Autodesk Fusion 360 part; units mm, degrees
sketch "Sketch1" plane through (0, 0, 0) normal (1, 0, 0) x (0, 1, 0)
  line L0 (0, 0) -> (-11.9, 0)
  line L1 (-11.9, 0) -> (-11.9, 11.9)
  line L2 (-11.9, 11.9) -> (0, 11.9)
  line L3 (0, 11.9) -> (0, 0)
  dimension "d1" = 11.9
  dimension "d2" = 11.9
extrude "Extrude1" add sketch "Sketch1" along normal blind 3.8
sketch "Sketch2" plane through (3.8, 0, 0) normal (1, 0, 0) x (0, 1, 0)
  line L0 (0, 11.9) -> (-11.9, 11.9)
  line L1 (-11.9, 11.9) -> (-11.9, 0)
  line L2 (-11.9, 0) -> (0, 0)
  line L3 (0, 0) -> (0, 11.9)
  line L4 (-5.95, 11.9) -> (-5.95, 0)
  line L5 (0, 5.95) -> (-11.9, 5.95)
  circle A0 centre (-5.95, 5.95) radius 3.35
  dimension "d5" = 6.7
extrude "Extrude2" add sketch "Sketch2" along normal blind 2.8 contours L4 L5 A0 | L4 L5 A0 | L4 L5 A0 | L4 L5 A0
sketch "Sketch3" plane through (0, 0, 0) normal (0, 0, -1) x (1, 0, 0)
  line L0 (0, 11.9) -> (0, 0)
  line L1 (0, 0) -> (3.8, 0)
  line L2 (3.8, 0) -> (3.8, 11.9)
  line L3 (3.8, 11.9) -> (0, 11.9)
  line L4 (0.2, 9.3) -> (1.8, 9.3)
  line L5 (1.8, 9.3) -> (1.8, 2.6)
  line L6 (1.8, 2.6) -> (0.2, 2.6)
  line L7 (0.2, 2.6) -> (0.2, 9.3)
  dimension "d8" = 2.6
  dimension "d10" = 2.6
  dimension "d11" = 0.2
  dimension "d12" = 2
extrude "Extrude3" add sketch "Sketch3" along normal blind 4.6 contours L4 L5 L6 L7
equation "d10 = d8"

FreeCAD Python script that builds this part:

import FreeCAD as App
import Part
import Sketcher
Q = App.Units.Quantity


def add_polygon(sketch, points):
    """Adds a closed chain of lines whose ends are joined by coincident constraints."""
    first, n = sketch.GeometryCount, len(points)
    for a, b in zip(points, points[1:] + points[:1]):
        sketch.addGeometry(Part.LineSegment(App.Vector(*a, 0), App.Vector(*b, 0)), False)
    for i in range(n):
        sketch.addConstraint(Sketcher.Constraint("Coincident", first + i, 2, first + (i + 1) % n, 1))

doc = App.newDocument("Part")
params = doc.addObject("Spreadsheet::Sheet", "Params")
for row, (alias, value) in enumerate([
    ("sketch1_width", "11.9 mm"),
    ("pad1_length", "3.8 mm"),
    ("sketch2_diameter", "6.7 mm"),
    ("pad2_length", "2.8 mm"),
    ("sketch3_width", "1.6 mm"),
    ("sketch3_height", "6.7 mm"),
    ("pad3_length", "4.6 mm"),
], start=1):
    params.set(f"A{row}", alias)
    params.set(f"B{row}", "=" + value)
    params.setAlias(f"B{row}", alias)

body = doc.addObject("PartDesign::Body", "Body")

# Sketch on YZ plane
sketch1 = doc.addObject("Sketcher::SketchObject", "Sketch")
body.addObject(sketch1)
sketch1.AttachmentSupport = (doc.YZ_Plane, [""])
sketch1.MapMode = "FlatFace"
add_polygon(sketch1, [(-11.9, 0), (0, 0), (0, 11.9), (-11.9, 11.9)])  # lines 0-3
sketch1.addConstraint([
    Sketcher.Constraint("Horizontal", 0),
    Sketcher.Constraint("Vertical", 1),
    Sketcher.Constraint("Horizontal", 2),
    Sketcher.Constraint("Vertical", 3),
    Sketcher.Constraint("Coincident", 0, 2, -1, 1),
    Sketcher.Constraint("Equal", 2, 1),
    Sketcher.Constraint("DistanceX", 0, 1, 0, 2, Q("11.9 mm")),
])
sketch1.setExpression("Constraints[10]", "Params.sketch1_width")
pad1 = doc.addObject("PartDesign::Pad", "Pad")
body.addObject(pad1)
pad1.Profile = sketch1
pad1.setExpression("Length", "Params.pad1_length")

# Sketch on YZ plane
sketch2 = doc.addObject("Sketcher::SketchObject", "Sketch001")
body.addObject(sketch2)
sketch2.AttachmentSupport = (doc.YZ_Plane, [""])
sketch2.MapMode = "FlatFace"
sketch2.AttachmentOffset = App.Placement(App.Vector(0, 0, 3.8), App.Rotation())
sketch2.addGeometry(Part.Circle(App.Vector(-5.95, 5.95, 0), App.Vector(0, 0, 1), 3.35), False)
sketch2.addConstraint([
    Sketcher.Constraint("Diameter", 0, Q("6.7 mm")),
    Sketcher.Constraint("DistanceX", 0, 3, -1, 1, Q("5.95 mm")),
    Sketcher.Constraint("DistanceY", -1, 1, 0, 3, Q("5.95 mm")),
])
sketch2.setExpression("Constraints[0]", "Params.sketch2_diameter")
pad2 = doc.addObject("PartDesign::Pad", "Pad001")
body.addObject(pad2)
pad2.Profile = sketch2
pad2.setExpression("Length", "Params.pad2_length")

# Sketch on XY plane
sketch3 = doc.addObject("Sketcher::SketchObject", "Sketch002")
body.addObject(sketch3)
sketch3.AttachmentSupport = (doc.XY_Plane, [""])
sketch3.MapMode = "FlatFace"
add_polygon(sketch3, [(1.8, -9.3), (0.2, -9.3), (0.2, -2.6), (1.8, -2.6)])  # lines 0-3
sketch3.addConstraint([
    Sketcher.Constraint("Horizontal", 0),
    Sketcher.Constraint("Vertical", 1),
    Sketcher.Constraint("Horizontal", 2),
    Sketcher.Constraint("Vertical", 3),
    Sketcher.Constraint("DistanceX", -1, 1, 0, 2, Q("0.2 mm")),
    Sketcher.Constraint("DistanceY", 1, 2, -1, 1, Q("2.6 mm")),
    Sketcher.Constraint("DistanceX", 0, 2, 0, 1, Q("1.6 mm")),
    Sketcher.Constraint("DistanceY", 1, 1, 1, 2, Q("6.7 mm")),
])
sketch3.setExpression("Constraints[10]", "Params.sketch3_width")
sketch3.setExpression("Constraints[11]", "Params.sketch3_height")
pad3 = doc.addObject("PartDesign::Pad", "Pad002")
body.addObject(pad3)
pad3.Profile = sketch3
pad3.setExpression("Length", "Params.pad3_length")
pad3.Reversed = True

doc.recompute()
